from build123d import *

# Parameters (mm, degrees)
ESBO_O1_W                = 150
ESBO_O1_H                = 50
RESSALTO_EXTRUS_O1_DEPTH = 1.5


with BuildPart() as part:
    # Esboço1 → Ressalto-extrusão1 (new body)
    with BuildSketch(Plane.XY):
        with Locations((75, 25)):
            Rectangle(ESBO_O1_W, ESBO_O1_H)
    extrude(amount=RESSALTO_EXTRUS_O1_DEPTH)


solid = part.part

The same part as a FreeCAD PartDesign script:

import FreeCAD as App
import Part
import Sketcher


def add_polygon(sketch, points):
    """Adds a closed chain of lines whose ends are joined by coincident constraints."""
    first, n = sketch.GeometryCount, len(points)
    for a, b in zip(points, points[1:] + points[:1]):
        sketch.addGeometry(Part.LineSegment(App.Vector(*a, 0), App.Vector(*b, 0)), False)
    for i in range(n):
        sketch.addConstraint(Sketcher.Constraint("Coincident", first + i, 2, first + (i + 1) % n, 1))

doc = App.newDocument("Part")
body = doc.addObject("PartDesign::Body", "Body")

# Sketch on XY plane
sketch1 = body.newObject("Sketcher::SketchObject", "Sketch")
sketch1.AttachmentSupport = (doc.getObject("XY_Plane"), [""])
sketch1.MapMode = "FlatFace"
add_polygon(sketch1, [(0, 50), (0, 0), (150, 0), (150, 50)])  # lines 0-3
sketch1.addConstraint(Sketcher.Constraint("Vertical", 0))
sketch1.addConstraint(Sketcher.Constraint("Horizontal", 1))
sketch1.addConstraint(Sketcher.Constraint("Vertical", 2))
sketch1.addConstraint(Sketcher.Constraint("Horizontal", 3))
sketch1.addConstraint(Sketcher.Constraint("Coincident", 0, 2, -1, 1))
sketch1.addConstraint(Sketcher.Constraint("DistanceX", 1, 1, 1, 2, 150.0))
sketch1.addConstraint(Sketcher.Constraint("DistanceY", 0, 2, 0, 1, 50.0))
pad1 = body.newObject("PartDesign::Pad", "Pad")
pad1.Profile = sketch1
pad1.Length = 1.5

doc.recompute()
